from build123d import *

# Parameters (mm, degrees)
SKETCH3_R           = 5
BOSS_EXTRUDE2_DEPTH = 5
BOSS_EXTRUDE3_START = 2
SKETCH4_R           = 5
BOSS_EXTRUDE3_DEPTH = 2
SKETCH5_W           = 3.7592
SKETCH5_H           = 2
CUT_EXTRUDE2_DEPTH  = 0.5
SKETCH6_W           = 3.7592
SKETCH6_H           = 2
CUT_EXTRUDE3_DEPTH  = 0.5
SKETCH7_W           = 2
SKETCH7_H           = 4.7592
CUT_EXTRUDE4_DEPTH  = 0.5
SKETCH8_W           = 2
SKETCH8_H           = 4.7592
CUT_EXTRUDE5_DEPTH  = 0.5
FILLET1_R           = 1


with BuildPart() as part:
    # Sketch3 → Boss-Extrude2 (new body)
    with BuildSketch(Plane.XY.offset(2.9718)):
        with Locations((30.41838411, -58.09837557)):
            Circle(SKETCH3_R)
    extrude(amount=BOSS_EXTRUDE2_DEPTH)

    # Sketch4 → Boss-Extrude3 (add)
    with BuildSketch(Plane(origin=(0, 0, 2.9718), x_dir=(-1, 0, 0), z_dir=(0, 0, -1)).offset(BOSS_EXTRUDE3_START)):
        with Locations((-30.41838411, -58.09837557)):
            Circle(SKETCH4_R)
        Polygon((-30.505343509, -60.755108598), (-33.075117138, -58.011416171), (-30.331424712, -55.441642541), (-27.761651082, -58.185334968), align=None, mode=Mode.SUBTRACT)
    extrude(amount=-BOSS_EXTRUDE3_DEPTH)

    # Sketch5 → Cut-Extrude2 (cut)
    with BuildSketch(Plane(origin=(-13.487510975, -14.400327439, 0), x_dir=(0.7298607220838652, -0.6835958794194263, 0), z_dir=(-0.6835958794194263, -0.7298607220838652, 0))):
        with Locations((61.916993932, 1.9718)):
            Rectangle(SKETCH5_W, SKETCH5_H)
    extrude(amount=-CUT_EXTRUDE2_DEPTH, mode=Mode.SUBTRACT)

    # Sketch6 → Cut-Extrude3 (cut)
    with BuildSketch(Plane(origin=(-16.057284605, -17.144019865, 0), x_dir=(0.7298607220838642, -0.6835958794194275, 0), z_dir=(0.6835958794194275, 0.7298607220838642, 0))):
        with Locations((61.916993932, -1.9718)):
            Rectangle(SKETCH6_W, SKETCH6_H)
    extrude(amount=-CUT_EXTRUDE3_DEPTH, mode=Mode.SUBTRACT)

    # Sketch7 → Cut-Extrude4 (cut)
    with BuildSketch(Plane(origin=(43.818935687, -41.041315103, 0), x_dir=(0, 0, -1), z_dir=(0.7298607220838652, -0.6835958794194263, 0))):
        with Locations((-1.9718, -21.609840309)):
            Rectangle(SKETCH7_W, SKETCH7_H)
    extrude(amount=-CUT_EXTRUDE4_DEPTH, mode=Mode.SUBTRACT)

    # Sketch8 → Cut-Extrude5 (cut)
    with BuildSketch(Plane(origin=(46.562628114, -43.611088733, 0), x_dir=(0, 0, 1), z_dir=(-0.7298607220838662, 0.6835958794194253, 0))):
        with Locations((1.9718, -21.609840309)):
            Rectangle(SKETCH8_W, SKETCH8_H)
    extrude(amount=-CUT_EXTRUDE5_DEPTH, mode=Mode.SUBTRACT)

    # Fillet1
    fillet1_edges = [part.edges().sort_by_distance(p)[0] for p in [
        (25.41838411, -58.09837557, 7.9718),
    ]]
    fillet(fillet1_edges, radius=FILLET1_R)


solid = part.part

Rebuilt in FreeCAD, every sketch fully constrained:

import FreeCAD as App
import Part
import Sketcher


def edges_at(feature, points):
    """Names of the edges that pass closest to the given points."""
    edges = feature.Shape.Edges
    near = lambda p: min(range(len(edges)), key=lambda i: edges[i].distToShape(Part.Vertex(*p))[0])
    return sorted({f"Edge{near(p) + 1}" for p in points})

doc = App.newDocument("Part")
params = doc.addObject("Spreadsheet::Sheet", "Params")
for row, (alias, value) in enumerate([
    ("sketch1_diameter", "10 mm"),
    ("pad1_length", "5 mm"),
    ("sketch2_diameter", "10 mm"),
    ("pad2_length", "2 mm"),
    ("sketch3_height", "2 mm"),
    ("pocket1_length", "0.5 mm"),
    ("sketch4_height", "2 mm"),
    ("pocket2_length", "0.5 mm"),
    ("sketch5_width", "2 mm"),
    ("pocket3_length", "0.5 mm"),
    ("sketch6_width", "2 mm"),
    ("pocket4_length", "0.5 mm"),
    ("fillet_radius", "1 mm"),
], start=1):
    params.set(f"A{row}", alias)
    params.set(f"B{row}", "=" + value)
    params.setAlias(f"B{row}", alias)

body = doc.addObject("PartDesign::Body", "Body")

sketch1 = body.newObject("Sketcher::SketchObject", "Sketch")
sketch1.AttachmentSupport = (doc.getObject("XY_Plane"), [""])
sketch1.MapMode = "FlatFace"
sketch1.AttachmentOffset = App.Placement(App.Vector(0, 0, 2.9718), App.Rotation())
sketch1.addGeometry(Part.Circle(App.Vector(30, -58, 0), App.Vector(0, 0, 1), 5), False)
sketch1.addConstraint(Sketcher.Constraint("Diameter", 0, 10.0))
sketch1.addConstraint(Sketcher.Constraint("DistanceX", -1, 1, 0, 3, 30.418384))
sketch1.addConstraint(Sketcher.Constraint("DistanceY", 0, 3, -1, 1, 58.098376))
sketch1.setExpression("Constraints[0]", "Params.sketch1_diameter")
pad1 = body.newObject("PartDesign::Pad", "Pad")
pad1.Profile = sketch1
pad1.setExpression("Length", "Params.pad1_length")

sketch2 = body.newObject("Sketcher::SketchObject", "Sketch001")
sketch2.AttachmentSupport = (doc.getObject("XY_Plane"), [""])
sketch2.MapMode = "FlatFace"
sketch2.AttachmentOffset = App.Placement(App.Vector(0, 0, 0.9718), App.Rotation())
sketch2.addGeometry(Part.Circle(App.Vector(30.4, -58.1, 0), App.Vector(0, 0, 1), 5), False)
sketch2.addGeometry(Part.LineSegment(App.Vector(27.8, -58.2, 0), App.Vector(30.5, -60.8, 0)), False)
sketch2.addGeometry(Part.LineSegment(App.Vector(30.5, -60.8, 0), App.Vector(33.1, -58, 0)), False)
sketch2.addGeometry(Part.LineSegment(App.Vector(33.1, -58, 0), App.Vector(30.3, -55.4, 0)), False)
sketch2.addGeometry(Part.LineSegment(App.Vector(30.3, -55.4, 0), App.Vector(27.8, -58.2, 0)), False)
sketch2.addConstraint(Sketcher.Constraint("Coincident", 1, 2, 2, 1))
sketch2.addConstraint(Sketcher.Constraint("Coincident", 2, 2, 3, 1))
sketch2.addConstraint(Sketcher.Constraint("Coincident", 3, 2, 4, 1))
sketch2.addConstraint(Sketcher.Constraint("Coincident", 4, 2, 1, 1))
sketch2.addConstraint(Sketcher.Constraint("Perpendicular", 1, 2))
sketch2.addConstraint(Sketcher.Constraint("Perpendicular", 2, 3))
sketch2.addConstraint(Sketcher.Constraint("Perpendicular", 3, 4))
sketch2.addConstraint(Sketcher.Constraint("Equal", 1, 2))
sketch2.addConstraint(Sketcher.Constraint("Diameter", 0, 10.0))
sketch2.addConstraint(Sketcher.Constraint("Distance", 1, 3.7592))
sketch2.addConstraint(Sketcher.Constraint("DistanceY", 1, 2, -1, 1, 60.755109))
sketch2.addConstraint(Sketcher.Constraint("DistanceX", -1, 1, 4, 2, 27.761651))
sketch2.addConstraint(Sketcher.Constraint("DistanceX", 0, 3, 1, 2, 0.086959))
sketch2.addConstraint(Sketcher.Constraint("DistanceY", 0, 3, 2, 2, 0.086959))
sketch2.addConstraint(Sketcher.Constraint("DistanceX", 3, 2, 0, 3, 0.086959))
sketch2.setExpression("Constraints[8]", "Params.sketch2_diameter")
pad2 = body.newObject("PartDesign::Pad", "Pad001")
pad2.Profile = sketch2
pad2.setExpression("Length", "Params.pad2_length")

sketch3 = body.newObject("Sketcher::SketchObject", "Sketch002")
sketch3.Placement = App.Placement(App.Vector(-13.487511, -14.400327, 0), App.Rotation(App.Vector(0.729860722, -0.683595879, 0), App.Vector(0, 0, 0.999999999), App.Vector(-0.683595879, -0.729860722, 0), "ZXY"))
sketch3.addGeometry(Part.LineSegment(App.Vector(60, 3, 0), App.Vector(60, 1, 0)), False)
sketch3.addGeometry(Part.LineSegment(App.Vector(60, 1, 0), App.Vector(63.8, 1, 0)), False)
sketch3.addGeometry(Part.LineSegment(App.Vector(63.8, 1, 0), App.Vector(63.8, 3, 0)), False)
sketch3.addGeometry(Part.LineSegment(App.Vector(63.8, 3, 0), App.Vector(60, 3, 0)), False)
sketch3.addConstraint(Sketcher.Constraint("Coincident", 0, 2, 1, 1))
sketch3.addConstraint(Sketcher.Constraint("Coincident", 1, 2, 2, 1))
sketch3.addConstraint(Sketcher.Constraint("Coincident", 2, 2, 3, 1))
sketch3.addConstraint(Sketcher.Constraint("Coincident", 3, 2, 0, 1))
sketch3.addConstraint(Sketcher.Constraint("Vertical", 0))
sketch3.addConstraint(Sketcher.Constraint("Horizontal", 1))
sketch3.addConstraint(Sketcher.Constraint("Vertical", 2))
sketch3.addConstraint(Sketcher.Constraint("Horizontal", 3))
sketch3.addConstraint(Sketcher.Constraint("DistanceY", 0, 2, 0, 1, 2.0))
sketch3.addConstraint(Sketcher.Constraint("DistanceX", 1, 1, 1, 2, 3.7592))
sketch3.addConstraint(Sketcher.Constraint("DistanceY", -1, 1, 0, 2, 0.9718))
sketch3.addConstraint(Sketcher.Constraint("DistanceX", -1, 1, 0, 2, 60.037394))
sketch3.setExpression("Constraints[8]", "Params.sketch3_height")
pocket1 = body.newObject("PartDesign::Pocket", "Pocket")
pocket1.Profile = sketch3
pocket1.setExpression("Length", "Params.pocket1_length")

sketch4 = body.newObject("Sketcher::SketchObject", "Sketch003")
sketch4.Placement = App.Placement(App.Vector(-16.057285, -17.14402, 0), App.Rotation(App.Vector(0.729860722, -0.683595879, 0), App.Vector(0, 0, -0.999999999), App.Vector(0.683595879, 0.729860722, 0), "ZXY"))
sketch4.addGeometry(Part.LineSegment(App.Vector(60, -1, 0), App.Vector(60, -3, 0)), False)
sketch4.addGeometry(Part.LineSegment(App.Vector(60, -3, 0), App.Vector(63.8, -3, 0)), False)
sketch4.addGeometry(Part.LineSegment(App.Vector(63.8, -3, 0), App.Vector(63.8, -1, 0)), False)
sketch4.addGeometry(Part.LineSegment(App.Vector(63.8, -1, 0), App.Vector(60, -1, 0)), False)
sketch4.addConstraint(Sketcher.Constraint("Coincident", 0, 2, 1, 1))
sketch4.addConstraint(Sketcher.Constraint("Coincident", 1, 2, 2, 1))
sketch4.addConstraint(Sketcher.Constraint("Coincident", 2, 2, 3, 1))
sketch4.addConstraint(Sketcher.Constraint("Coincident", 3, 2, 0, 1))
sketch4.addConstraint(Sketcher.Constraint("Vertical", 0))
sketch4.addConstraint(Sketcher.Constraint("Horizontal", 1))
sketch4.addConstraint(Sketcher.Constraint("Vertical", 2))
sketch4.addConstraint(Sketcher.Constraint("Horizontal", 3))
sketch4.addConstraint(Sketcher.Constraint("DistanceY", 0, 2, 0, 1, 2.0))
sketch4.addConstraint(Sketcher.Constraint("DistanceX", 1, 1, 1, 2, 3.7592))
sketch4.addConstraint(Sketcher.Constraint("DistanceY", 0, 2, -1, 1, 2.9718))
sketch4.addConstraint(Sketcher.Constraint("DistanceX", -1, 1, 0, 2, 60.037394))
sketch4.setExpression("Constraints[8]", "Params.sketch4_height")
pocket2 = body.newObject("PartDesign::Pocket", "Pocket001")
pocket2.Profile = sketch4
pocket2.setExpression("Length", "Params.pocket2_length")

sketch5 = body.newObject("Sketcher::SketchObject", "Sketch004")
sketch5.Placement = App.Placement(App.Vector(43.818936, -41.041315, 0), App.Rotation(App.Vector(0, 0, -1), App.Vector(0.683595879, 0.729860722, 0), App.Vector(0.729860722, -0.683595879, 0), "ZXY"))
sketch5.addGeometry(Part.LineSegment(App.Vector(-3, -19.2, 0), App.Vector(-3, -24, 0)), False)
sketch5.addGeometry(Part.LineSegment(App.Vector(-3, -24, 0), App.Vector(-1, -24, 0)), False)
sketch5.addGeometry(Part.LineSegment(App.Vector(-1, -24, 0), App.Vector(-1, -19.2, 0)), False)
sketch5.addGeometry(Part.LineSegment(App.Vector(-1, -19.2, 0), App.Vector(-3, -19.2, 0)), False)
sketch5.addConstraint(Sketcher.Constraint("Coincident", 0, 2, 1, 1))
sketch5.addConstraint(Sketcher.Constraint("Coincident", 1, 2, 2, 1))
sketch5.addConstraint(Sketcher.Constraint("Coincident", 2, 2, 3, 1))
sketch5.addConstraint(Sketcher.Constraint("Coincident", 3, 2, 0, 1))
sketch5.addConstraint(Sketcher.Constraint("Vertical", 0))
sketch5.addConstraint(Sketcher.Constraint("Horizontal", 1))
sketch5.addConstraint(Sketcher.Constraint("Vertical", 2))
sketch5.addConstraint(Sketcher.Constraint("Horizontal", 3))
sketch5.addConstraint(Sketcher.Constraint("DistanceX", 1, 1, 1, 2, 2.0))
sketch5.addConstraint(Sketcher.Constraint("DistanceY", 0, 2, 0, 1, 4.7592))
sketch5.addConstraint(Sketcher.Constraint("DistanceX", 0, 2, -1, 1, 2.9718))
sketch5.addConstraint(Sketcher.Constraint("DistanceY", 0, 2, -1, 1, 23.98944))
sketch5.setExpression("Constraints[8]", "Params.sketch5_width")
pocket3 = body.newObject("PartDesign::Pocket", "Pocket002")
pocket3.Profile = sketch5
pocket3.setExpression("Length", "Params.pocket3_length")

sketch6 = body.newObject("Sketcher::SketchObject", "Sketch005")
sketch6.Placement = App.Placement(App.Vector(46.562628, -43.611089, 0), App.Rotation(App.Vector(0, 0, 1), App.Vector(0.683595879, 0.729860722, 0), App.Vector(-0.729860722, 0.683595879, 0), "ZXY"))
sketch6.addGeometry(Part.LineSegment(App.Vector(1, -19.2, 0), App.Vector(1, -24, 0)), False)
sketch6.addGeometry(Part.LineSegment(App.Vector(1, -24, 0), App.Vector(3, -24, 0)), False)
sketch6.addGeometry(Part.LineSegment(App.Vector(3, -24, 0), App.Vector(3, -19.2, 0)), False)
sketch6.addGeometry(Part.LineSegment(App.Vector(3, -19.2, 0), App.Vector(1, -19.2, 0)), False)
sketch6.addConstraint(Sketcher.Constraint("Coincident", 0, 2, 1, 1))
sketch6.addConstraint(Sketcher.Constraint("Coincident", 1, 2, 2, 1))
sketch6.addConstraint(Sketcher.Constraint("Coincident", 2, 2, 3, 1))
sketch6.addConstraint(Sketcher.Constraint("Coincident", 3, 2, 0, 1))
sketch6.addConstraint(Sketcher.Constraint("Vertical", 0))
sketch6.addConstraint(Sketcher.Constraint("Horizontal", 1))
sketch6.addConstraint(Sketcher.Constraint("Vertical", 2))
sketch6.addConstraint(Sketcher.Constraint("Horizontal", 3))
sketch6.addConstraint(Sketcher.Constraint("DistanceX", 1, 1, 1, 2, 2.0))
sketch6.addConstraint(Sketcher.Constraint("DistanceY", 0, 2, 0, 1, 4.7592))
sketch6.addConstraint(Sketcher.Constraint("DistanceX", -1, 1, 0, 2, 0.9718))
sketch6.addConstraint(Sketcher.Constraint("DistanceY", 0, 2, -1, 1, 23.98944))
sketch6.setExpression("Constraints[8]", "Params.sketch6_width")
pocket4 = body.newObject("PartDesign::Pocket", "Pocket003")
pocket4.Profile = sketch6
pocket4.setExpression("Length", "Params.pocket4_length")
doc.recompute()

fillet = body.newObject("PartDesign::Fillet", "Fillet")
fillet.Base = (pocket4, edges_at(pocket4, [(25.418, -58.098, 7.972)]))
fillet.setExpression("Radius", "Params.fillet_radius")

doc.recompute()
